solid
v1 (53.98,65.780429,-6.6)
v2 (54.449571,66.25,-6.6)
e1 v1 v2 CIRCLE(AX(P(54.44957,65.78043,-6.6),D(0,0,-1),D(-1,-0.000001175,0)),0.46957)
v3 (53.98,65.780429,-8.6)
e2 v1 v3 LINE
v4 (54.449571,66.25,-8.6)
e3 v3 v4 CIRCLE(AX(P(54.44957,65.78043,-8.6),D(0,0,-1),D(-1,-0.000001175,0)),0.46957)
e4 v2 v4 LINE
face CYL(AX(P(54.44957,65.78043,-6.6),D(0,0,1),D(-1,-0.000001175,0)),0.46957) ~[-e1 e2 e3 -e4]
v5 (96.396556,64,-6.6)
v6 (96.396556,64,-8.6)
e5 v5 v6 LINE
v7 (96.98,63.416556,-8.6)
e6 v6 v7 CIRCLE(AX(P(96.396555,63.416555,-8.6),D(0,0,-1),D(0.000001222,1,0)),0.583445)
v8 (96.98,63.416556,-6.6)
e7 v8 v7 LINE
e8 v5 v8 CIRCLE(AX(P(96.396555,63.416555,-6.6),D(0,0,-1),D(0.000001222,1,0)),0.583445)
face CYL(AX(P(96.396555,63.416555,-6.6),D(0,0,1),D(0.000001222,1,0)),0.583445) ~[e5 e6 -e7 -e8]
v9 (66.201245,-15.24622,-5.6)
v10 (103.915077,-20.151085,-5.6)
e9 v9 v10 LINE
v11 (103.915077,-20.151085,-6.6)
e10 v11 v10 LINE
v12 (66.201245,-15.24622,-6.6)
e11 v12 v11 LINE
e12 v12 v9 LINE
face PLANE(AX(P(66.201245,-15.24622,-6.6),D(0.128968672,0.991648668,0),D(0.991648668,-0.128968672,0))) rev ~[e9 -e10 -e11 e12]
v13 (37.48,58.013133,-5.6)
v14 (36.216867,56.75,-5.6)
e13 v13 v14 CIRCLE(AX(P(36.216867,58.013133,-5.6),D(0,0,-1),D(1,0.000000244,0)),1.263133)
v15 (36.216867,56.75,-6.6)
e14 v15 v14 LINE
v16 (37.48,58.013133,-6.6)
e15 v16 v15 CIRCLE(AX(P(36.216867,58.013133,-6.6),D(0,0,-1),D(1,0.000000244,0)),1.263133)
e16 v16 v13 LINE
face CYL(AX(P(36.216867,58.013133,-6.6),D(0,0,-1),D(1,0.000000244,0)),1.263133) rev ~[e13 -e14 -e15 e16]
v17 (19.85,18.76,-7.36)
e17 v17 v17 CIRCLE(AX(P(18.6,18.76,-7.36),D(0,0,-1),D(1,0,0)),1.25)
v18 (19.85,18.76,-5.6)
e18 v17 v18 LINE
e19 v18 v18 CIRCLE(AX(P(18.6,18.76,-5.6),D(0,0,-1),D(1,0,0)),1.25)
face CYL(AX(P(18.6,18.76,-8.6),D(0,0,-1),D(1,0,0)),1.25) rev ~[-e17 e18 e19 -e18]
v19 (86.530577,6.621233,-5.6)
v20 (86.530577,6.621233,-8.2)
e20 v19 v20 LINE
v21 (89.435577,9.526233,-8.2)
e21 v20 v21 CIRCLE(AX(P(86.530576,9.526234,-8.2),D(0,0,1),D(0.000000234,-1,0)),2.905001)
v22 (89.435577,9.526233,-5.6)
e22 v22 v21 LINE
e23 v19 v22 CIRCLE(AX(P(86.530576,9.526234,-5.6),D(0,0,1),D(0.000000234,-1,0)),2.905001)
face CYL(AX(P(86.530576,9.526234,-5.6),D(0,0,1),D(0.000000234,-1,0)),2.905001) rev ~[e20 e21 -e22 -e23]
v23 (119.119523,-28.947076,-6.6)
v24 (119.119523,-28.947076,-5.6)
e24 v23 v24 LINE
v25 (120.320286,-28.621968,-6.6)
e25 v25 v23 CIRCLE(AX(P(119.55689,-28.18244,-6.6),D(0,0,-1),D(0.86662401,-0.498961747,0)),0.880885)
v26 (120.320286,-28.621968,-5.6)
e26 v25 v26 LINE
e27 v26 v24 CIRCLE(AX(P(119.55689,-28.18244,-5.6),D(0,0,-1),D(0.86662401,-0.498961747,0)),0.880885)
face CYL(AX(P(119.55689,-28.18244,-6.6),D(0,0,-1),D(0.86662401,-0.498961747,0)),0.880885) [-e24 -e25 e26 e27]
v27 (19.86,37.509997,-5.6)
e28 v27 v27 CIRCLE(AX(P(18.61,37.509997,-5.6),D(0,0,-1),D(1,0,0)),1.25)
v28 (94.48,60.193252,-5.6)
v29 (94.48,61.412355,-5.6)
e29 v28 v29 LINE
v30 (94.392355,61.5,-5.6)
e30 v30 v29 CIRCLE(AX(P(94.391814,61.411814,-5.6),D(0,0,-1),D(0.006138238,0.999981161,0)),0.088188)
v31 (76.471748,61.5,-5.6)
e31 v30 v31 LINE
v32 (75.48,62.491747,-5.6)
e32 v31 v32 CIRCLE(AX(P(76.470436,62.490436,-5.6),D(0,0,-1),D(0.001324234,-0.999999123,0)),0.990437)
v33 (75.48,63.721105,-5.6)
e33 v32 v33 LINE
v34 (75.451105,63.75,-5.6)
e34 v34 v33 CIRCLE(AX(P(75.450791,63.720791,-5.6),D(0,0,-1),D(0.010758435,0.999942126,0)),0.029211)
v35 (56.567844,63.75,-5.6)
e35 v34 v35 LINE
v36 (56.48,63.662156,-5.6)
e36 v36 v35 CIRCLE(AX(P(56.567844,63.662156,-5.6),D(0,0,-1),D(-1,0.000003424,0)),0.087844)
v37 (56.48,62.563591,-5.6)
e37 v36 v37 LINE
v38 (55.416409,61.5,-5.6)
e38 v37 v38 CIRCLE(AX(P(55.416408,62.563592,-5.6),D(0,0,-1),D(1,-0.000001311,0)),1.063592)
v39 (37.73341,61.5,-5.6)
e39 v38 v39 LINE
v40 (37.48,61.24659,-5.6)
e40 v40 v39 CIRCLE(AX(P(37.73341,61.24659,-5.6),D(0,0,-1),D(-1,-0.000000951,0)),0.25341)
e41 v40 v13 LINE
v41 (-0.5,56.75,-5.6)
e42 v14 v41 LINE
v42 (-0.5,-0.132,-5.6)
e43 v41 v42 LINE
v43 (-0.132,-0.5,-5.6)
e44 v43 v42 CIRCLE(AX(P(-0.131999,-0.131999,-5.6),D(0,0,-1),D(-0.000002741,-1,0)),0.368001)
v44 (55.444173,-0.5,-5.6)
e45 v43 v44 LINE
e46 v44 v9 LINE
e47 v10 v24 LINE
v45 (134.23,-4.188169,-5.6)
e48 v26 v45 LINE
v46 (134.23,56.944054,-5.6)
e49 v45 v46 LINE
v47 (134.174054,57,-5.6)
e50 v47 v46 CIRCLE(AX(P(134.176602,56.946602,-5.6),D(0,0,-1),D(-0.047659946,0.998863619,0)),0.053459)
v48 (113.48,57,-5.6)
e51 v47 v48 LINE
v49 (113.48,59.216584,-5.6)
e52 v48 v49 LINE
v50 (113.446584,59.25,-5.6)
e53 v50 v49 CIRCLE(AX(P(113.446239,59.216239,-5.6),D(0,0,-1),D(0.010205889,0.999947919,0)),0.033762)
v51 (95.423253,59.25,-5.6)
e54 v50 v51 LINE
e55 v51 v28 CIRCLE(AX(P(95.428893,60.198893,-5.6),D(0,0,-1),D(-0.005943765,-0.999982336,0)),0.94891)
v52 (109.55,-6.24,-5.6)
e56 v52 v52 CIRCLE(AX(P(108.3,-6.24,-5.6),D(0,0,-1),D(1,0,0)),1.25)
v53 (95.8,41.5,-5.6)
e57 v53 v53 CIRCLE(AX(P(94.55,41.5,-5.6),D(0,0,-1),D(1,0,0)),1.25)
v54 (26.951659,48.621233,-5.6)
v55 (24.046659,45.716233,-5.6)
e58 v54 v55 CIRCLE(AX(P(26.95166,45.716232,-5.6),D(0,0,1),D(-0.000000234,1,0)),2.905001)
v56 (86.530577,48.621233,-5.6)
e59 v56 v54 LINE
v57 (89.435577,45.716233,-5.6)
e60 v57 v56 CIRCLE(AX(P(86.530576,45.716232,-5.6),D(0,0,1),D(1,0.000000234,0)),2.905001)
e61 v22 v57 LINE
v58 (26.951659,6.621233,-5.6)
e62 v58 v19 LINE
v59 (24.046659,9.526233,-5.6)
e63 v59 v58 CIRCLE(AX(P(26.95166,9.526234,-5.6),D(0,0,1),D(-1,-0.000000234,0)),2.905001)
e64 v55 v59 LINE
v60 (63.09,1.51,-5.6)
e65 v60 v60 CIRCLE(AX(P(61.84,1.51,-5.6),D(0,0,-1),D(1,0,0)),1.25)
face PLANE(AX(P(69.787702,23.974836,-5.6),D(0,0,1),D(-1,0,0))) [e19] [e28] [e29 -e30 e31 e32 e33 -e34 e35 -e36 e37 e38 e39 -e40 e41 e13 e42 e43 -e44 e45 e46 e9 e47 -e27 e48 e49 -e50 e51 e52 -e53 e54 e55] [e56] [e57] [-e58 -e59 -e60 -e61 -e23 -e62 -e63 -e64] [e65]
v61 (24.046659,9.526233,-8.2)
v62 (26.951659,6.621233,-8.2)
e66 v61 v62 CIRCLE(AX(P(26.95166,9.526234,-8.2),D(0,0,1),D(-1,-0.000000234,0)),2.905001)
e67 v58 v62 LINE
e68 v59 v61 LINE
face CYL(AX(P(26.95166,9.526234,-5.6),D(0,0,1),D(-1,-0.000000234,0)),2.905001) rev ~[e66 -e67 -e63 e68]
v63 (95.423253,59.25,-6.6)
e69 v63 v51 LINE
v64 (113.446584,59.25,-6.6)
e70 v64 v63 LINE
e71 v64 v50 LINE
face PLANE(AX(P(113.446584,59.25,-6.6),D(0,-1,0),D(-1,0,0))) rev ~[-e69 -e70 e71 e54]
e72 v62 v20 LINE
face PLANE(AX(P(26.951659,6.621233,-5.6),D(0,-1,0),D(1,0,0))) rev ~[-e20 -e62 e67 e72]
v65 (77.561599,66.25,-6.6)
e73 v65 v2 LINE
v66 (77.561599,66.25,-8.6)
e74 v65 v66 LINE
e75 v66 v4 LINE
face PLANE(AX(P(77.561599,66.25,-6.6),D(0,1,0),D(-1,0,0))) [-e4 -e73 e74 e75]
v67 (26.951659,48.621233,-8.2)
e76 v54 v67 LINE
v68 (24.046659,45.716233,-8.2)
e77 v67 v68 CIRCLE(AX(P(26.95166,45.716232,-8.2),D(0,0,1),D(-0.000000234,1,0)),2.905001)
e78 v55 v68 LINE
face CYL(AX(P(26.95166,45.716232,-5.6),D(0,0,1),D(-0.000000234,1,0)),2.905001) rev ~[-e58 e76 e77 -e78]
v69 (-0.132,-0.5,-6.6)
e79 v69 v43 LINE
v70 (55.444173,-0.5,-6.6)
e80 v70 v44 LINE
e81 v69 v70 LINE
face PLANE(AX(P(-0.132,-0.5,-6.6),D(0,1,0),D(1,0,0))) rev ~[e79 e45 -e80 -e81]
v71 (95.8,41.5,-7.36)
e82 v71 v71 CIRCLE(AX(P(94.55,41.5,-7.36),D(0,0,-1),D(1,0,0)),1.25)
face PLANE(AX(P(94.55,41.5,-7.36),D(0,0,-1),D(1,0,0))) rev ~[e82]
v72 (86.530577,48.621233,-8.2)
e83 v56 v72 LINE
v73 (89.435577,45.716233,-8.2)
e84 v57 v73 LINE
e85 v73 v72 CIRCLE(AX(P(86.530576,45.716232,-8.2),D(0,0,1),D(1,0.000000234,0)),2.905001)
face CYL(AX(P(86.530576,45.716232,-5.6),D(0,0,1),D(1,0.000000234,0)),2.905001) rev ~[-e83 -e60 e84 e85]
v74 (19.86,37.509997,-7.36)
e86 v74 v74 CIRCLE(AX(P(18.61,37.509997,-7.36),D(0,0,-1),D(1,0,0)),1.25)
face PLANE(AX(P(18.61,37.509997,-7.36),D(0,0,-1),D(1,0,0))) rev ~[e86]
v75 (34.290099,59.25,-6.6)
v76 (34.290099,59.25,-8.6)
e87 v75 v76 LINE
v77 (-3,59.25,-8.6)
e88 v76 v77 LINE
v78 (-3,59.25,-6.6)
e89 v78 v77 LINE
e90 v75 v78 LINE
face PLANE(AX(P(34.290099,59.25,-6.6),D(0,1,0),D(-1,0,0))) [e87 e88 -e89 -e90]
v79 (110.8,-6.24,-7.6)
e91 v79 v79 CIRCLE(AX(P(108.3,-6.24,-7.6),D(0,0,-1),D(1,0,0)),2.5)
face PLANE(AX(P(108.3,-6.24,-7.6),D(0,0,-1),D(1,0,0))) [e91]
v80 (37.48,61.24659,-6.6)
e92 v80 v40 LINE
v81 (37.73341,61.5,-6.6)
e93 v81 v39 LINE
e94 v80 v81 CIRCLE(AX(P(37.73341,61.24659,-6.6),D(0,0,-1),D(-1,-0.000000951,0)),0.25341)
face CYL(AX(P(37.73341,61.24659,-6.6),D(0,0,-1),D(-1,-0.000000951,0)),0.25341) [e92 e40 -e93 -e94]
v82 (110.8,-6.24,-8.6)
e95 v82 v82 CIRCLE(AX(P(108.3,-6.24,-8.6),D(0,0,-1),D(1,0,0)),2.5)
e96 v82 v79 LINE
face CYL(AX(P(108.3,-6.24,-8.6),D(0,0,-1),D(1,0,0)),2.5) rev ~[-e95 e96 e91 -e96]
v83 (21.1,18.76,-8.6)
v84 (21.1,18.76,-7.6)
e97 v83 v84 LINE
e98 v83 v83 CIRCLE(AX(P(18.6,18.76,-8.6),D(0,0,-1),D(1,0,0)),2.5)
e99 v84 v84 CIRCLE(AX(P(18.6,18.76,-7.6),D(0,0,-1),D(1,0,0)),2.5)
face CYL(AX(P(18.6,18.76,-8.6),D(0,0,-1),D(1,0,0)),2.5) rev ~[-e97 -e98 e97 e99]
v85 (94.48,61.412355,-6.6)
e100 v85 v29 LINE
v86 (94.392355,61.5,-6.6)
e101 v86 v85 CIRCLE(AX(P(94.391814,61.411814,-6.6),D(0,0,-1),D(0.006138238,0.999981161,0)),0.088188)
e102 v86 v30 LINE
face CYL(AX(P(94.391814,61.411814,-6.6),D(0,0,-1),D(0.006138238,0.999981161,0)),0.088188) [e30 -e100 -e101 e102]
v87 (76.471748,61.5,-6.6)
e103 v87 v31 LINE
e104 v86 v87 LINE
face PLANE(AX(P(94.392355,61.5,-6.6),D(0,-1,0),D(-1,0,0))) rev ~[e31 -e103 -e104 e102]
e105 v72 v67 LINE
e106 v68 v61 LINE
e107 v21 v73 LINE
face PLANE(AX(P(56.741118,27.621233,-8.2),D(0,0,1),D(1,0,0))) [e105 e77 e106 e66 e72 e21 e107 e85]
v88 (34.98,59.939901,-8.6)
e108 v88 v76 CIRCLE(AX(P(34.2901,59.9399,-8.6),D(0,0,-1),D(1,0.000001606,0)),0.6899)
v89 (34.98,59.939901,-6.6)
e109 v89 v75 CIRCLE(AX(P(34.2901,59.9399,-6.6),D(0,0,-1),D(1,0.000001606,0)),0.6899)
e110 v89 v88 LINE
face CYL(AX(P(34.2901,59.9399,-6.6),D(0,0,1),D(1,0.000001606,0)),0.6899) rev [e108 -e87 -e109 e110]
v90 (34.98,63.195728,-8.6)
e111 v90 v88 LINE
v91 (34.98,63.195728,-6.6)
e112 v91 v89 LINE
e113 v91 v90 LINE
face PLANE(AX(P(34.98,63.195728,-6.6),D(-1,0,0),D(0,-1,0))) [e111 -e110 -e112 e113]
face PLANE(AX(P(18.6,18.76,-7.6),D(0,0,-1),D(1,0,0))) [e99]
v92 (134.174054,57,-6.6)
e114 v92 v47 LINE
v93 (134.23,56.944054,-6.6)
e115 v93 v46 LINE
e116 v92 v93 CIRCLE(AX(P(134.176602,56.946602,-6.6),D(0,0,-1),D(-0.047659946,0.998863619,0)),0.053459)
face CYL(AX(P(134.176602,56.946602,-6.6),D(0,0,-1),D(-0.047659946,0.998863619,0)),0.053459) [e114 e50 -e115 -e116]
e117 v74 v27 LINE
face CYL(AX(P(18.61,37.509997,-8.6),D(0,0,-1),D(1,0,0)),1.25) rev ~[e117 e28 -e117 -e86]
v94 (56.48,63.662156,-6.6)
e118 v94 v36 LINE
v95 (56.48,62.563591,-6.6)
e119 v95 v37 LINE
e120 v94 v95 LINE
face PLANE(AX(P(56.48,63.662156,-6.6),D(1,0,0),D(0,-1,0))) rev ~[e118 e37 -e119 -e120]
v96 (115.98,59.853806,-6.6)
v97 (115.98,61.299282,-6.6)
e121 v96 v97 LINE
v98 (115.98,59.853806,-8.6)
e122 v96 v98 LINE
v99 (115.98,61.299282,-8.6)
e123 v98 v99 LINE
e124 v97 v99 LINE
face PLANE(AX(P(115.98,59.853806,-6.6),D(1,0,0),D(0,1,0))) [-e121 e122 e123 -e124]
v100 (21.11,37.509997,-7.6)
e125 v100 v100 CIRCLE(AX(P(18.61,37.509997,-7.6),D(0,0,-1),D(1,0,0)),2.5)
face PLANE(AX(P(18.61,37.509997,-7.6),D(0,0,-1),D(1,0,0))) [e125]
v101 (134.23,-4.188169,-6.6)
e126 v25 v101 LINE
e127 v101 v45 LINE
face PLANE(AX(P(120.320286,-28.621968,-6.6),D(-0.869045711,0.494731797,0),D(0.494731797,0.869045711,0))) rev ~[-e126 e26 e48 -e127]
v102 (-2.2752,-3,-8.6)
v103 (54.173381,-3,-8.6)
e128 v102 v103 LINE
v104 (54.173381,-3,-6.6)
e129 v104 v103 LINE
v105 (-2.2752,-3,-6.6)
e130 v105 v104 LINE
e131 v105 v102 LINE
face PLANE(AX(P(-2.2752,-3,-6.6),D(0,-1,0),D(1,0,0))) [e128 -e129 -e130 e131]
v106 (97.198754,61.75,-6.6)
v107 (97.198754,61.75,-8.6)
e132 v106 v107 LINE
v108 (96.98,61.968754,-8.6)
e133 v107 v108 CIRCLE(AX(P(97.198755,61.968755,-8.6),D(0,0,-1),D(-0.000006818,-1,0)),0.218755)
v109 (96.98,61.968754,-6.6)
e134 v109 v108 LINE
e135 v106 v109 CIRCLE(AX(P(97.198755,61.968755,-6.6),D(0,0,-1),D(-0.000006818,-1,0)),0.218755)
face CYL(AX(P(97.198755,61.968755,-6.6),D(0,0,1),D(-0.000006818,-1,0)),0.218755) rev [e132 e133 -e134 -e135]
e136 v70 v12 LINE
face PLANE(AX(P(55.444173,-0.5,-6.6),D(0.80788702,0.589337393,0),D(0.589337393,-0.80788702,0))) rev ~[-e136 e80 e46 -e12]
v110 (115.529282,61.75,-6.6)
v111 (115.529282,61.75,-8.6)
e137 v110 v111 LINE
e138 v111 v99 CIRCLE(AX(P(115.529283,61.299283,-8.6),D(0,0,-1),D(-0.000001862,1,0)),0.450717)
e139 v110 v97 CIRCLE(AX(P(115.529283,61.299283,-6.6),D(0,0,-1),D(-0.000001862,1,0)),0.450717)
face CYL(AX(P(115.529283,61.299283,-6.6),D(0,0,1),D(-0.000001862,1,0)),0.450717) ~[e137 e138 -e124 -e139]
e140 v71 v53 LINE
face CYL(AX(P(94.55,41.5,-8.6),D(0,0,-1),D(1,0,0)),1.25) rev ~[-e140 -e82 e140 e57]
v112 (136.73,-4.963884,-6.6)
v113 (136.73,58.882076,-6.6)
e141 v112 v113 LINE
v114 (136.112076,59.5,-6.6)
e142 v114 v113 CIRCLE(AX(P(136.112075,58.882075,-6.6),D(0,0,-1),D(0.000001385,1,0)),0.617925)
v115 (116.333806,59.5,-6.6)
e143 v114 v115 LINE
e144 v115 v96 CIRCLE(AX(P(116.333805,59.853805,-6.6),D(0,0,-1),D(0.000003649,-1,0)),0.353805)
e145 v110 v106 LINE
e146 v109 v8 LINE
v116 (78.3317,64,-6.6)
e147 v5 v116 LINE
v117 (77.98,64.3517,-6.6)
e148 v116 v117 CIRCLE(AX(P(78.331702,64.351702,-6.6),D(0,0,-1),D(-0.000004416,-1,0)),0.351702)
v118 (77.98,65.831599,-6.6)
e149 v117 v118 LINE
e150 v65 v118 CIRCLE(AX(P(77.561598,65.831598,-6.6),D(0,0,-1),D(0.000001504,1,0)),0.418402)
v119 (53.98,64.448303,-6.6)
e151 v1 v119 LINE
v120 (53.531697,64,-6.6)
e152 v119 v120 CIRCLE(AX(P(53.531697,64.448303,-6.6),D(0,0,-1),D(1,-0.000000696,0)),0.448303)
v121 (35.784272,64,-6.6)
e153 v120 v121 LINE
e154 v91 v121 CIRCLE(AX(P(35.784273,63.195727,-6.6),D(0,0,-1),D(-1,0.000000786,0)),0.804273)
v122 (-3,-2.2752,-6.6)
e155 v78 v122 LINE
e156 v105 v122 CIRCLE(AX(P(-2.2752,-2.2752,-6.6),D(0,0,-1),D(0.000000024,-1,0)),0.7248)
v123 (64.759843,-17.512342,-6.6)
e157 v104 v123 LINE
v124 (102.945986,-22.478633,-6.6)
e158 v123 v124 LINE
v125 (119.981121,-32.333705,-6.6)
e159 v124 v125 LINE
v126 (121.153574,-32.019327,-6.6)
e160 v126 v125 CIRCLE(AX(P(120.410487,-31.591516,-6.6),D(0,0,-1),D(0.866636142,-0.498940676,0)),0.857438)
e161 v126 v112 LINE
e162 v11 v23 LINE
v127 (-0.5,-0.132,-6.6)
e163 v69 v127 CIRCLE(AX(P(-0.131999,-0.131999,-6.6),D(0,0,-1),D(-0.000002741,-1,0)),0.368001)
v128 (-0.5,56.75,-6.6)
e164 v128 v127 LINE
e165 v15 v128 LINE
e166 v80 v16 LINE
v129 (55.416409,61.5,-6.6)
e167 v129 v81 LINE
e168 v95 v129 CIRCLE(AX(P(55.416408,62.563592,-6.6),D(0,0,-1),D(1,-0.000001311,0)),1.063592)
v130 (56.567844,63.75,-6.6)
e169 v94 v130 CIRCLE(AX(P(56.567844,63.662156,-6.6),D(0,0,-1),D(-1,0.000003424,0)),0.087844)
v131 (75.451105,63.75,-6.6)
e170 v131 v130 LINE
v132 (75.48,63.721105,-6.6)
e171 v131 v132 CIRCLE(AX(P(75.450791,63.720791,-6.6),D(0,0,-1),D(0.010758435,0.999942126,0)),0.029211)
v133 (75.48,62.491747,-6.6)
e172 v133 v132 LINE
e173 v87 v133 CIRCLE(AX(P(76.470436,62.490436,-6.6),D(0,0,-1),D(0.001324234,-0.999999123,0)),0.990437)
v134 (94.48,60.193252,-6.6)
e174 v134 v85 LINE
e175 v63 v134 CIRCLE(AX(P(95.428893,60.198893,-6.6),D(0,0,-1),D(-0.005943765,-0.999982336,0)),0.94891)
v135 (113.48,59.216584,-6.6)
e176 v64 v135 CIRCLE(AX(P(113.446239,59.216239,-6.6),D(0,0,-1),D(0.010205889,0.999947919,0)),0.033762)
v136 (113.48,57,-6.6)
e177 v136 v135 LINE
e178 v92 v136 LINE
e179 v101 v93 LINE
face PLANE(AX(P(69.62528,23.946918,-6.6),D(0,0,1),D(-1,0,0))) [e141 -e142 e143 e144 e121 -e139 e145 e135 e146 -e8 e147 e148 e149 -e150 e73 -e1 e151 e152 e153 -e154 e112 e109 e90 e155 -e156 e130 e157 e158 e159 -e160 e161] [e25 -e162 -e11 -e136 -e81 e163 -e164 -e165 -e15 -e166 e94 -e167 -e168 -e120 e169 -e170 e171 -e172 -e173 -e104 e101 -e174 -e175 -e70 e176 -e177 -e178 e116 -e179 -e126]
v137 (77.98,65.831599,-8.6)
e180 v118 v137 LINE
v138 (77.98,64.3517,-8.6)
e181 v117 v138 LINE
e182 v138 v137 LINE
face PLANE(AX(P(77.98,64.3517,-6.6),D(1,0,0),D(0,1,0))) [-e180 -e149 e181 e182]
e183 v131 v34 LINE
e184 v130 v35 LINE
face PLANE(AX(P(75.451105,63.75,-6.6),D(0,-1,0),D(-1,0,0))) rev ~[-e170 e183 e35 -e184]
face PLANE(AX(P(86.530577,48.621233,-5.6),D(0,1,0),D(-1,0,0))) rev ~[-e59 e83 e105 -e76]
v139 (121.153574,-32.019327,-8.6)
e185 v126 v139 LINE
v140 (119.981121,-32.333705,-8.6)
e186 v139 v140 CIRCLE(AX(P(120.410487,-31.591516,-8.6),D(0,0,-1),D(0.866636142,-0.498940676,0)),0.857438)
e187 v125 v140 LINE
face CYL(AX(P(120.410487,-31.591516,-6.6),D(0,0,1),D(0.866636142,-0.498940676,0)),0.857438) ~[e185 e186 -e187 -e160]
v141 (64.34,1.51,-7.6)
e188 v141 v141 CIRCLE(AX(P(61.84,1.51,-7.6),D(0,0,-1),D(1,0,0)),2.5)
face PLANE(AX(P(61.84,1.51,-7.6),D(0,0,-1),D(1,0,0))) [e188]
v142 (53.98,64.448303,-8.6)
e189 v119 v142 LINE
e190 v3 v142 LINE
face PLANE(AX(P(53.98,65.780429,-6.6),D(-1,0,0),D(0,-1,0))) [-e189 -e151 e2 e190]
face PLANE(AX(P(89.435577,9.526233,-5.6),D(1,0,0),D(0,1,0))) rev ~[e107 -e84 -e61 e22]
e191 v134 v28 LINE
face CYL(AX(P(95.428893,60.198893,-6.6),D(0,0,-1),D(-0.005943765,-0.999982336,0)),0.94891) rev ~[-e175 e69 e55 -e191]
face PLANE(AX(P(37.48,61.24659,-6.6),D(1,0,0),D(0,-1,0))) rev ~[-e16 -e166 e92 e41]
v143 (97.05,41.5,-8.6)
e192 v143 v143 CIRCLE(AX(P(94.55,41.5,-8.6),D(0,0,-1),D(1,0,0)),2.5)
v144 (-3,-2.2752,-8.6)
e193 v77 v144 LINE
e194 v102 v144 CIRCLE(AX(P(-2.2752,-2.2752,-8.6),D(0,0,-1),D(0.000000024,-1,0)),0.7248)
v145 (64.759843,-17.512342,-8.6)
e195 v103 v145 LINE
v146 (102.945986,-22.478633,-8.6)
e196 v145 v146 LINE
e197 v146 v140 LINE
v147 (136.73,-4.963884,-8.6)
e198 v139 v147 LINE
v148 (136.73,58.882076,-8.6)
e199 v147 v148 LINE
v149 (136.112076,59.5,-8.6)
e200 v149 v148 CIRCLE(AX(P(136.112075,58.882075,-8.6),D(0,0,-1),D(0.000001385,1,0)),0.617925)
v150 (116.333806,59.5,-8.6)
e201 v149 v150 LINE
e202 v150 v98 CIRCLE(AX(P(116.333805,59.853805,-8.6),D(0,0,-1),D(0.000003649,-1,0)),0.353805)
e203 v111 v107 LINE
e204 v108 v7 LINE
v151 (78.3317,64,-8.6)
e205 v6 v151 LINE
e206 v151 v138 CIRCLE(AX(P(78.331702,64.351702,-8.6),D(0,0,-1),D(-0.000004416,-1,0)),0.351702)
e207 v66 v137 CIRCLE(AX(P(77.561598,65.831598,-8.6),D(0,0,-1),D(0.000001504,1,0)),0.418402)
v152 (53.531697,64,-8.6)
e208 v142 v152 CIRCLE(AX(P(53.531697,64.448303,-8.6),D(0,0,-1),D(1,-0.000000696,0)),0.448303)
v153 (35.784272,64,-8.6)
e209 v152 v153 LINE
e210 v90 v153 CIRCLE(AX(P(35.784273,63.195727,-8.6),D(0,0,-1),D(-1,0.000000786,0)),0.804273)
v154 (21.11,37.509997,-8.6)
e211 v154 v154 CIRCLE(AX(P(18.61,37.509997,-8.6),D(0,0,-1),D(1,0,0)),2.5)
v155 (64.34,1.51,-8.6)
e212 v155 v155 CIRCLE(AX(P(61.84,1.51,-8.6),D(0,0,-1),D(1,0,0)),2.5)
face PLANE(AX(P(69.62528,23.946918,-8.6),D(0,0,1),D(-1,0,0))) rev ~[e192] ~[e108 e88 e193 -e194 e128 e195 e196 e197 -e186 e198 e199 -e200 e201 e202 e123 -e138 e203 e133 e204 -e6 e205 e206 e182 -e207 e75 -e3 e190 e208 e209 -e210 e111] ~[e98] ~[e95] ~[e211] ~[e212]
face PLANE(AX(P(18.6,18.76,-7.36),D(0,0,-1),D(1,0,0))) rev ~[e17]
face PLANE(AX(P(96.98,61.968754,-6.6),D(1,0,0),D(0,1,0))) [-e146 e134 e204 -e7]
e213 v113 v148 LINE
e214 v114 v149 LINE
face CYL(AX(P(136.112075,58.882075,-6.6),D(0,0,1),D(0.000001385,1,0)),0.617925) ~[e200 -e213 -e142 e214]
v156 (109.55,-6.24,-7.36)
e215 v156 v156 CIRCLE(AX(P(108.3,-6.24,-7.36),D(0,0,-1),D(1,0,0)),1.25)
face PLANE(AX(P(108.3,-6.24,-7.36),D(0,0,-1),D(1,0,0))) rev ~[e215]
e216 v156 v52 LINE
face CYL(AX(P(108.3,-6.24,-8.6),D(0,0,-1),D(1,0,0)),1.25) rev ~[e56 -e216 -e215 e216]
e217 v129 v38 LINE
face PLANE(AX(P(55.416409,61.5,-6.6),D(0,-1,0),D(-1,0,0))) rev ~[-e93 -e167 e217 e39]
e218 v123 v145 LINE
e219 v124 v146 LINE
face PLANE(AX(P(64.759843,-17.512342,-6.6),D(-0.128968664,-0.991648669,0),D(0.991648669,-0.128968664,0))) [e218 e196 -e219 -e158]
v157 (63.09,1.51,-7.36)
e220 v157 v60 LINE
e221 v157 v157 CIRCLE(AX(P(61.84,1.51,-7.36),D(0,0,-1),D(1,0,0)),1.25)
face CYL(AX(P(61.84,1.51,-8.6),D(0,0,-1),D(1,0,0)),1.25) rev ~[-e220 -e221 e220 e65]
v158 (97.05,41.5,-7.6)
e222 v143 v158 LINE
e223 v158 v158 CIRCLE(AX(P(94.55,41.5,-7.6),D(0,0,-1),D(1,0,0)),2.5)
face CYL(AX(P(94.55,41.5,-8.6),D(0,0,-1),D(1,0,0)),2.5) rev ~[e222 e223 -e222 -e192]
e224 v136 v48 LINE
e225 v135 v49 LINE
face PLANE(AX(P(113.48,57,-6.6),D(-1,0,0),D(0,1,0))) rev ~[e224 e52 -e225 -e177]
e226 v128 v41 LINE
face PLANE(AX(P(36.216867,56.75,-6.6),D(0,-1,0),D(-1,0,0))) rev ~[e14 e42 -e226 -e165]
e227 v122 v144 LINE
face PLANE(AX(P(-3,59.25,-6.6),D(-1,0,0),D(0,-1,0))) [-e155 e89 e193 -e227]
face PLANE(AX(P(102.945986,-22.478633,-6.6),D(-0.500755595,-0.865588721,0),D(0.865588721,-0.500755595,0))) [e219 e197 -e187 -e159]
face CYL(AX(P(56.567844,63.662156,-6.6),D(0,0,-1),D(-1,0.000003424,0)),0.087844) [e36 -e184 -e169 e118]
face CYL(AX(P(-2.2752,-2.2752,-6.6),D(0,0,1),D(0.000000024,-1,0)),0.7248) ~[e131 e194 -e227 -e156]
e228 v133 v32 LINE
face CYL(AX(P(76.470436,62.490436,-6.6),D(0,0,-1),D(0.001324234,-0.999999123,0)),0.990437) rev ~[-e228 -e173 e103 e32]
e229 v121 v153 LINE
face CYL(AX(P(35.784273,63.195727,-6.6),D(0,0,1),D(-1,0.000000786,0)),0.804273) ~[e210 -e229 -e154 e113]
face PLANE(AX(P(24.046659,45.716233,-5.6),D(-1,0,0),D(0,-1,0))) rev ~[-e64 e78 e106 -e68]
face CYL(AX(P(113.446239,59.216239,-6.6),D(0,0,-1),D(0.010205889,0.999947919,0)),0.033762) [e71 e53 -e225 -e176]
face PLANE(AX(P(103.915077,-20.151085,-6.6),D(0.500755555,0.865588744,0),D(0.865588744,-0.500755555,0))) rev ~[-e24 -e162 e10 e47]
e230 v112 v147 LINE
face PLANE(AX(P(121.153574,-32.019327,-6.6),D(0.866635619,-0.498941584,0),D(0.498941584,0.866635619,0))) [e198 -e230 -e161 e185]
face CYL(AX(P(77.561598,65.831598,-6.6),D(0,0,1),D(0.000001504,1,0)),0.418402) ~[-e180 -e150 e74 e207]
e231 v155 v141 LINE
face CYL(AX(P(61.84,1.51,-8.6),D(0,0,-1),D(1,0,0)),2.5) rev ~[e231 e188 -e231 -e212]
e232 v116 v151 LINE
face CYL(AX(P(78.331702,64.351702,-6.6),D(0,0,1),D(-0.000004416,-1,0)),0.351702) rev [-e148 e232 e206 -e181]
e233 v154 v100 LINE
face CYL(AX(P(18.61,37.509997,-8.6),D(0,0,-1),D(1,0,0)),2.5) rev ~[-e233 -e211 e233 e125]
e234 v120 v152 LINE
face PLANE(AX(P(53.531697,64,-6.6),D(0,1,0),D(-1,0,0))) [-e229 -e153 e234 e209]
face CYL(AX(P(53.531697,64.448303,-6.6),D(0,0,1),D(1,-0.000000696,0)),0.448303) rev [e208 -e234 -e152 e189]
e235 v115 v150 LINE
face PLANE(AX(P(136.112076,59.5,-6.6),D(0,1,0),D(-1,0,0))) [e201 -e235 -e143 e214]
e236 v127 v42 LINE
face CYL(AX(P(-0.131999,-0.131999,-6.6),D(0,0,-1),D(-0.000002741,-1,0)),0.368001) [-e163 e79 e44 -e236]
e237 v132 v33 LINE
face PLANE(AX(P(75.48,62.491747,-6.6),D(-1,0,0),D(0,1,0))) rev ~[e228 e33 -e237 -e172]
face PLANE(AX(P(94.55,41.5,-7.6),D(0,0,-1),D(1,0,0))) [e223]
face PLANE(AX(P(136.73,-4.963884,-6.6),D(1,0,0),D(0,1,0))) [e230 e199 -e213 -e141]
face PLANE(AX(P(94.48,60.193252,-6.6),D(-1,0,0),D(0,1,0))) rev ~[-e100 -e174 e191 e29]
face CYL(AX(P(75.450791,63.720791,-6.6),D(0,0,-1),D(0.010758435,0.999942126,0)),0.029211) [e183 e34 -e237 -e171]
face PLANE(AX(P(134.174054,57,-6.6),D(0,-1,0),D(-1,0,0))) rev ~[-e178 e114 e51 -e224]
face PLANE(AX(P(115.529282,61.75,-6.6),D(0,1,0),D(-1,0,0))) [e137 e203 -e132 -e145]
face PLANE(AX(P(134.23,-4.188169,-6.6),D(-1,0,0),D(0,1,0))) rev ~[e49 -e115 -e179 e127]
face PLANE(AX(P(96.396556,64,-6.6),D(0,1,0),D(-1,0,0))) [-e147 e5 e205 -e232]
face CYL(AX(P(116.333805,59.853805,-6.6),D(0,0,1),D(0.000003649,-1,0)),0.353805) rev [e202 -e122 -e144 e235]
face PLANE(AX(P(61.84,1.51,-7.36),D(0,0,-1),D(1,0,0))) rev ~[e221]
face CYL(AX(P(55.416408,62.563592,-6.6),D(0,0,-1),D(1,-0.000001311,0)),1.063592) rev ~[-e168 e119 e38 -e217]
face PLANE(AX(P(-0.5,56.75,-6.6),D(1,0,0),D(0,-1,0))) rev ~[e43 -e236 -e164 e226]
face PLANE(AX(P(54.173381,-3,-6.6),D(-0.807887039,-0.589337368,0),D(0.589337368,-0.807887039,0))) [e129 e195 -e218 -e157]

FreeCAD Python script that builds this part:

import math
import FreeCAD as App
import Part
import Sketcher
Q = App.Units.Quantity

doc = App.newDocument("Part")
body = doc.addObject("PartDesign::Body", "Body")

sketch1 = body.newObject("Sketcher::SketchObject", "Sketch")
sketch1.AttachmentSupport = (doc.getObject("XY_Plane"), [""])
sketch1.MapMode = "FlatFace"
sketch1.AttachmentOffset = App.Placement(App.Vector(0, 0, -16), App.Rotation())
sketch1.addGeometry([
    Part.LineSegment(App.Vector(54.17, -3, 0), App.Vector(-2.28, -3, 0)),
    Part.ArcOfCircle(Part.Circle(App.Vector(-2.28, -2.28, 0), App.Vector(0, 0, 1), 0.72), math.radians(180), math.radians(270)),
    Part.LineSegment(App.Vector(-3, -2.28, 0), App.Vector(-3, 59.25, 0)),
    Part.LineSegment(App.Vector(-3, 59.25, 0), App.Vector(34.29, 59.25, 0)),
    Part.ArcOfCircle(Part.Circle(App.Vector(34.29, 59.94, 0), App.Vector(0, 0, 1), 0.69), math.radians(-90), math.radians(0)),
    Part.LineSegment(App.Vector(34.98, 59.94, 0), App.Vector(34.98, 63.2, 0)),
    Part.ArcOfCircle(Part.Circle(App.Vector(35.78, 63.2, 0), App.Vector(0, 0, 1), 0.8), math.radians(90), math.radians(180)),
    Part.LineSegment(App.Vector(35.78, 64, 0), App.Vector(53.53, 64, 0)),
    Part.ArcOfCircle(Part.Circle(App.Vector(53.53, 64.45, 0), App.Vector(0, 0, 1), 0.45), math.radians(-90), math.radians(0)),
    Part.LineSegment(App.Vector(53.98, 64.45, 0), App.Vector(53.98, 65.78, 0)),
    Part.ArcOfCircle(Part.Circle(App.Vector(54.45, 65.78, 0), App.Vector(0, 0, 1), 0.47), math.radians(90), math.radians(180)),
    Part.LineSegment(App.Vector(54.45, 66.25, 0), App.Vector(77.56, 66.25, 0)),
    Part.ArcOfCircle(Part.Circle(App.Vector(77.56, 65.83, 0), App.Vector(0, 0, 1), 0.42), math.radians(0), math.radians(90)),
    Part.LineSegment(App.Vector(77.98, 65.83, 0), App.Vector(77.98, 64.35, 0)),
    Part.ArcOfCircle(Part.Circle(App.Vector(78.33, 64.35, 0), App.Vector(0, 0, 1), 0.35), math.radians(-180), math.radians(-90)),
    Part.LineSegment(App.Vector(78.33, 64, 0), App.Vector(96.4, 64, 0)),
    Part.ArcOfCircle(Part.Circle(App.Vector(96.4, 63.42, 0), App.Vector(0, 0, 1), 0.58), math.radians(0), math.radians(90)),
    Part.LineSegment(App.Vector(96.98, 63.42, 0), App.Vector(96.98, 61.97, 0)),
    Part.ArcOfCircle(Part.Circle(App.Vector(97.2, 61.97, 0), App.Vector(0, 0, 1), 0.22), math.radians(-180), math.radians(-90)),
    Part.LineSegment(App.Vector(97.2, 61.75, 0), App.Vector(115.53, 61.75, 0)),
    Part.ArcOfCircle(Part.Circle(App.Vector(115.53, 61.3, 0), App.Vector(0, 0, 1), 0.45), math.radians(0), math.radians(90)),
    Part.LineSegment(App.Vector(115.98, 61.3, 0), App.Vector(115.98, 59.85, 0)),
    Part.ArcOfCircle(Part.Circle(App.Vector(116.33, 59.85, 0), App.Vector(0, 0, 1), 0.35), math.radians(180), math.radians(270)),
    Part.LineSegment(App.Vector(116.33, 59.5, 0), App.Vector(136.11, 59.5, 0)),
    Part.ArcOfCircle(Part.Circle(App.Vector(136.11, 58.88, 0), App.Vector(0, 0, 1), 0.62), math.radians(0), math.radians(90)),
    Part.LineSegment(App.Vector(136.73, 58.88, 0), App.Vector(136.73, -4.96, 0)),
    Part.LineSegment(App.Vector(136.73, -4.96, 0), App.Vector(121.15, -32.02, 0)),
    Part.ArcOfCircle(Part.Circle(App.Vector(120.41, -31.59, 0), App.Vector(0, 0, 1), 0.86), math.radians(-120), math.radians(-30)),
    Part.LineSegment(App.Vector(119.98, -32.33, 0), App.Vector(102.95, -22.48, 0)),
    Part.LineSegment(App.Vector(102.95, -22.48, 0), App.Vector(64.76, -17.51, 0)),
    Part.LineSegment(App.Vector(64.76, -17.51, 0), App.Vector(54.17, -3, 0)),
], False)
sketch1.addConstraint([
    Sketcher.Constraint("Tangent", 0, 2, 1, 2),
    Sketcher.Constraint("Tangent", 1, 1, 2, 1),
    Sketcher.Constraint("Coincident", 2, 2, 3, 1),
    Sketcher.Constraint("Tangent", 3, 2, 4, 1),
    Sketcher.Constraint("Tangent", 4, 2, 5, 1),
    Sketcher.Constraint("Tangent", 5, 2, 6, 2),
    Sketcher.Constraint("Tangent", 6, 1, 7, 1),
    Sketcher.Constraint("Tangent", 7, 2, 8, 1),
    Sketcher.Constraint("Tangent", 8, 2, 9, 1),
    Sketcher.Constraint("Tangent", 9, 2, 10, 2),
    Sketcher.Constraint("Tangent", 10, 1, 11, 1),
    Sketcher.Constraint("Tangent", 11, 2, 12, 2),
    Sketcher.Constraint("Tangent", 12, 1, 13, 1),
    Sketcher.Constraint("Coincident", 13, 2, 14, 1),
    Sketcher.Constraint("Coincident", 14, 2, 15, 1),
    Sketcher.Constraint("Tangent", 15, 2, 16, 2),
    Sketcher.Constraint("Tangent", 16, 1, 17, 1),
    Sketcher.Constraint("Coincident", 17, 2, 18, 1),
    Sketcher.Constraint("Coincident", 18, 2, 19, 1),
    Sketcher.Constraint("Tangent", 19, 2, 20, 2),
    Sketcher.Constraint("Tangent", 20, 1, 21, 1),
    Sketcher.Constraint("Coincident", 21, 2, 22, 1),
    Sketcher.Constraint("Coincident", 22, 2, 23, 1),
    Sketcher.Constraint("Tangent", 23, 2, 24, 2),
    Sketcher.Constraint("Tangent", 24, 1, 25, 1),
    Sketcher.Constraint("Coincident", 25, 2, 26, 1),
    Sketcher.Constraint("Tangent", 26, 2, 27, 2),
    Sketcher.Constraint("Tangent", 27, 1, 28, 1),
    Sketcher.Constraint("Coincident", 28, 2, 29, 1),
    Sketcher.Constraint("Coincident", 29, 2, 30, 1),
    Sketcher.Constraint("Coincident", 30, 2, 0, 1),
    Sketcher.Constraint("Horizontal", 0),
    Sketcher.Constraint("Vertical", 2),
    Sketcher.Constraint("Horizontal", 3),
    Sketcher.Constraint("Vertical", 5),
    Sketcher.Constraint("Horizontal", 7),
    Sketcher.Constraint("Vertical", 9),
    Sketcher.Constraint("Horizontal", 11),
    Sketcher.Constraint("Vertical", 13),
    Sketcher.Constraint("Horizontal", 15),
    Sketcher.Constraint("Vertical", 17),
    Sketcher.Constraint("Horizontal", 19),
    Sketcher.Constraint("Vertical", 21),
    Sketcher.Constraint("Horizontal", 23),
    Sketcher.Constraint("Vertical", 25),
    Sketcher.Constraint("Horizontal", 14, 3, 13, 2),
    Sketcher.Constraint("Horizontal", 7, 2, 14, 2),
    Sketcher.Constraint("Horizontal", 18, 3, 17, 2),
    Sketcher.Constraint("Horizontal", 22, 3, 21, 2),
    Sketcher.Constraint("DistanceY", 0, 2, -1, 1, 3.0),
    Sketcher.Constraint("DistanceX", 1, 1, -1, 1, 3.0),
    Sketcher.Constraint("DistanceY", -1, 1, 6, 1, 64.0),
    Sketcher.Constraint("DistanceY", -1, 1, 22, 2, 59.5),
    Sketcher.Constraint("Angle", 26, Q("-119.93 deg")),
    Sketcher.Constraint("Angle", 28, Q("149.949998 deg")),
    Sketcher.Constraint("Angle", 29, Q("172.590001 deg")),
    Sketcher.Constraint("Angle", 30, Q("126.11 deg")),
    Sketcher.Constraint("Radius", 1, 0.7248),
    Sketcher.Constraint("Radius", 4, 0.6899),
    Sketcher.Constraint("Radius", 12, 0.418402),
    Sketcher.Constraint("Radius", 14, 0.351702),
    Sketcher.Constraint("DistanceY", -1, 1, 2, 2, 59.25),
    Sketcher.Constraint("DistanceX", -1, 1, 4, 2, 34.98),
    Sketcher.Constraint("DistanceX", -1, 1, 8, 2, 53.98),
    Sketcher.Constraint("DistanceY", -1, 1, 10, 1, 66.25),
    Sketcher.Constraint("DistanceX", -1, 1, 12, 1, 77.98),
    Sketcher.Constraint("DistanceX", -1, 1, 16, 1, 96.98),
    Sketcher.Constraint("DistanceY", -1, 1, 18, 2, 61.75),
    Sketcher.Constraint("DistanceX", -1, 1, 20, 1, 115.98),
    Sketcher.Constraint("DistanceX", -1, 1, 24, 1, 136.73),
    Sketcher.Constraint("Radius", 10, 0.46957),
    Sketcher.Constraint("Radius", 6, 0.804273),
    Sketcher.Constraint("Radius", 8, 0.448303),
    Sketcher.Constraint("Radius", 16, 0.583445),
    Sketcher.Constraint("Radius", 18, 0.218755),
    Sketcher.Constraint("Radius", 20, 0.450717),
    Sketcher.Constraint("Radius", 22, 0.353805),
    Sketcher.Constraint("Radius", 24, 0.617925),
    Sketcher.Constraint("Radius", 27, 0.857438),
    Sketcher.Constraint("DistanceX", 0, 2, 0, 1, 56.448581),
    Sketcher.Constraint("DistanceX", 19, 1, 19, 2, 18.330528),
    Sketcher.Constraint("DistanceX", 23, 1, 23, 2, 19.77827),
    Sketcher.Constraint("DistanceY", 25, 2, 25, 1, 63.84596),
    Sketcher.Constraint("DistanceX", -1, 1, 14, 2, 78.3317),
    Sketcher.Constraint("DistanceY", 27, 3, 20, 3, 92.890799),
    Sketcher.Constraint("DistanceX", 28, 2, 27, 3, 17.464501),
])
pad1 = body.newObject("PartDesign::Pad", "Pad")
pad1.Profile = sketch1
pad1.Length = 2
pad1.Reversed = True

sketch2 = body.newObject("Sketcher::SketchObject", "Sketch001")
sketch2.AttachmentSupport = (doc.getObject("XY_Plane"), [""])
sketch2.MapMode = "FlatFace"
sketch2.AttachmentOffset = App.Placement(App.Vector(0, 0, -16), App.Rotation())
sketch2.addGeometry([
    Part.LineSegment(App.Vector(55.444, -0.5, 0), App.Vector(-0.132, -0.5, 0)),
    Part.ArcOfCircle(Part.Circle(App.Vector(-0.132, -0.132, 0), App.Vector(0, 0, 1), 0.368), math.radians(-180), math.radians(-90)),
    Part.LineSegment(App.Vector(-0.5, -0.132, 0), App.Vector(-0.5, 56.75, 0)),
    Part.LineSegment(App.Vector(-0.5, 56.75, 0), App.Vector(36.217, 56.75, 0)),
    Part.ArcOfCircle(Part.Circle(App.Vector(36.217, 58.013, 0), App.Vector(0, 0, 1), 1.263), math.radians(-90), math.radians(0)),
    Part.LineSegment(App.Vector(37.48, 58.013, 0), App.Vector(37.48, 61.247, 0)),
    Part.ArcOfCircle(Part.Circle(App.Vector(37.733, 61.247, 0), App.Vector(0, 0, 1), 0.253), math.radians(90), math.radians(180)),
    Part.LineSegment(App.Vector(37.733, 61.5, 0), App.Vector(55.416, 61.5, 0)),
    Part.ArcOfCircle(Part.Circle(App.Vector(55.416, 62.564, 0), App.Vector(0, 0, 1), 1.064), math.radians(-90), math.radians(0)),
    Part.LineSegment(App.Vector(56.48, 62.564, 0), App.Vector(56.48, 63.662, 0)),
    Part.ArcOfCircle(Part.Circle(App.Vector(56.568, 63.662, 0), App.Vector(0, 0, 1), 0.088), math.radians(90), math.radians(180)),
    Part.LineSegment(App.Vector(56.568, 63.75, 0), App.Vector(75.451, 63.75, 0)),
    Part.ArcOfCircle(Part.Circle(App.Vector(75.451, 63.721, 0), App.Vector(0, 0, 1), 0.029), math.radians(1), math.radians(89)),
    Part.LineSegment(App.Vector(75.48, 63.721, 0), App.Vector(75.48, 62.492, 0)),
    Part.ArcOfCircle(Part.Circle(App.Vector(76.47, 62.49, 0), App.Vector(0, 0, 1), 0.99), math.radians(180), math.radians(270)),
    Part.LineSegment(App.Vector(76.472, 61.5, 0), App.Vector(94.392, 61.5, 0)),
    Part.ArcOfCircle(Part.Circle(App.Vector(94.392, 61.412, 0), App.Vector(0, 0, 1), 0.088), math.radians(0), math.radians(90)),
    Part.LineSegment(App.Vector(94.48, 61.412, 0), App.Vector(94.48, 60.193, 0)),
    Part.ArcOfCircle(Part.Circle(App.Vector(95.429, 60.199, 0), App.Vector(0, 0, 1), 0.949), math.radians(-180), math.radians(-90)),
    Part.LineSegment(App.Vector(95.423, 59.25, 0), App.Vector(113.447, 59.25, 0)),
    Part.ArcOfCircle(Part.Circle(App.Vector(113.446, 59.216, 0), App.Vector(0, 0, 1), 0.034), math.radians(1), math.radians(89)),
    Part.LineSegment(App.Vector(113.48, 59.217, 0), App.Vector(113.48, 57, 0)),
    Part.LineSegment(App.Vector(113.48, 57, 0), App.Vector(134.174, 57, 0)),
    Part.ArcOfCircle(Part.Circle(App.Vector(134.177, 56.947, 0), App.Vector(0, 0, 1), 0.053), math.radians(-3), math.radians(93)),
    Part.LineSegment(App.Vector(134.23, 56.944, 0), App.Vector(134.23, -4.188, 0)),
    Part.LineSegment(App.Vector(134.23, -4.188, 0), App.Vector(120.32, -28.622, 0)),
    Part.ArcOfCircle(Part.Circle(App.Vector(119.557, -28.182, 0), App.Vector(0, 0, 1), 0.881), math.radians(-120), math.radians(-30)),
    Part.LineSegment(App.Vector(119.12, -28.947, 0), App.Vector(103.915, -20.151, 0)),
    Part.LineSegment(App.Vector(103.915, -20.151, 0), App.Vector(66.201, -15.246, 0)),
    Part.LineSegment(App.Vector(66.201, -15.246, 0), App.Vector(55.444, -0.5, 0)),
], False)
sketch2.addConstraint([
    Sketcher.Constraint("Coincident", 0, 2, 1, 2),
    Sketcher.Constraint("Coincident", 1, 1, 2, 1),
    Sketcher.Constraint("Coincident", 2, 2, 3, 1),
    Sketcher.Constraint("Tangent", 3, 2, 4, 1),
    Sketcher.Constraint("Tangent", 4, 2, 5, 1),
    Sketcher.Constraint("Tangent", 5, 2, 6, 2),
    Sketcher.Constraint("Tangent", 6, 1, 7, 1),
    Sketcher.Constraint("Tangent", 7, 2, 8, 1),
    Sketcher.Constraint("Tangent", 8, 2, 9, 1),
    Sketcher.Constraint("Coincident", 9, 2, 10, 2),
    Sketcher.Constraint("Coincident", 10, 1, 11, 1),
    Sketcher.Constraint("Coincident", 11, 2, 12, 2),
    Sketcher.Constraint("Coincident", 12, 1, 13, 1),
    Sketcher.Constraint("Coincident", 13, 2, 14, 1),
    Sketcher.Constraint("Coincident", 14, 2, 15, 1),
    Sketcher.Constraint("Coincident", 15, 2, 16, 2),
    Sketcher.Constraint("Coincident", 16, 1, 17, 1),
    Sketcher.Constraint("Coincident", 17, 2, 18, 1),
    Sketcher.Constraint("Coincident", 18, 2, 19, 1),
    Sketcher.Constraint("Coincident", 19, 2, 20, 2),
    Sketcher.Constraint("Coincident", 20, 1, 21, 1),
    Sketcher.Constraint("Coincident", 21, 2, 22, 1),
    Sketcher.Constraint("Coincident", 22, 2, 23, 2),
    Sketcher.Constraint("Coincident", 23, 1, 24, 1),
    Sketcher.Constraint("Coincident", 24, 2, 25, 1),
    Sketcher.Constraint("Coincident", 25, 2, 26, 2),
    Sketcher.Constraint("Coincident", 26, 1, 27, 1),
    Sketcher.Constraint("Coincident", 27, 2, 28, 1),
    Sketcher.Constraint("Coincident", 28, 2, 29, 1),
    Sketcher.Constraint("Coincident", 29, 2, 0, 1),
    Sketcher.Constraint("Horizontal", 0),
    Sketcher.Constraint("Vertical", 2),
    Sketcher.Constraint("Horizontal", 3),
    Sketcher.Constraint("Vertical", 5),
    Sketcher.Constraint("Horizontal", 7),
    Sketcher.Constraint("Vertical", 9),
    Sketcher.Constraint("Horizontal", 11),
    Sketcher.Constraint("Vertical", 13),
    Sketcher.Constraint("Horizontal", 15),
    Sketcher.Constraint("Vertical", 17),
    Sketcher.Constraint("Horizontal", 19),
    Sketcher.Constraint("Vertical", 21),
    Sketcher.Constraint("Horizontal", 22),
    Sketcher.Constraint("Vertical", 24),
    Sketcher.Constraint("Horizontal", 10, 3, 9, 2),
    Sketcher.Constraint("Horizontal", 7, 2, 14, 2),
    Sketcher.Constraint("Vertical", 1, 3, 0, 2),
    Sketcher.Constraint("DistanceY", -1, 1, 21, 2, 57.0),
    Sketcher.Constraint("Radius", 1, 0.368001),
    Sketcher.Constraint("DistanceX", 17, 2, 20, 1, 19.0),
    Sketcher.Constraint("DistanceY", 0, 2, -1, 1, 0.5),
    Sketcher.Constraint("DistanceX", 1, 1, -1, 1, 0.5),
    Sketcher.Constraint("DistanceY", -1, 1, 6, 1, 61.5),
    Sketcher.Constraint("Angle", 27, Q("149.95 deg")),
    Sketcher.Constraint("Angle", 28, Q("172.59 deg")),
    Sketcher.Constraint("Angle", 29, Q("126.110002 deg")),
    Sketcher.Constraint("DistanceX", 7, 1, 7, 2, 17.682999),
    Sketcher.Constraint("DistanceY", 2, 1, 2, 2, 56.882),
    Sketcher.Constraint("DistanceY", -1, 1, 2, 2, 56.75),
    Sketcher.Constraint("DistanceX", -1, 1, 4, 2, 37.48),
    Sketcher.Constraint("DistanceX", -1, 1, 8, 2, 56.48),
    Sketcher.Constraint("DistanceY", -1, 1, 10, 1, 63.75),
    Sketcher.Constraint("DistanceX", -1, 1, 12, 1, 75.48),
    Sketcher.Constraint("DistanceX", -1, 1, 16, 1, 94.48),
    Sketcher.Constraint("DistanceY", -1, 1, 18, 2, 59.25),
    Sketcher.Constraint("DistanceX", -1, 1, 23, 1, 134.23),
    Sketcher.Constraint("Radius", 6, 0.25341),
    Sketcher.Constraint("Radius", 12, 0.029211),
    Sketcher.Constraint("Radius", 18, 0.94891),
    Sketcher.Constraint("Radius", 23, 0.053459),
    Sketcher.Constraint("Radius", 4, 1.263133),
    Sketcher.Constraint("Radius", 10, 0.087844),
    Sketcher.Constraint("Radius", 14, 0.990437),
    Sketcher.Constraint("Radius", 16, 0.088188),
    Sketcher.Constraint("Radius", 20, 0.033762),
    Sketcher.Constraint("Radius", 26, 0.880885),
    Sketcher.Constraint("DistanceX", 11, 1, 11, 2, 18.883261),
    Sketcher.Constraint("DistanceX", 19, 1, 19, 2, 18.023331),
    Sketcher.Constraint("DistanceY", 13, 2, 13, 1, 1.229358),
    Sketcher.Constraint("DistanceX", -1, 1, 23, 3, 134.176602),
    Sketcher.Constraint("DistanceY", -1, 1, 23, 3, 56.946602),
    Sketcher.Constraint("DistanceX", 15, 2, 18, 2, 1.030898),
    Sketcher.Constraint("DistanceY", 25, 2, 24, 2, 24.433799),
    Sketcher.Constraint("Distance", 27, 17.565439),
    Sketcher.Constraint("DistanceX", 0, 2, 0, 1, 55.576173),
    Sketcher.Constraint("DistanceX", 15, 1, 15, 2, 17.920607),
    Sketcher.Constraint("DistanceY", 17, 2, 17, 1, 1.219103),
    Sketcher.Constraint("DistanceY", 21, 2, 21, 1, 2.216584),
    Sketcher.Constraint("DistanceY", 24, 2, 24, 1, 61.132223),
    Sketcher.Constraint("DistanceX", -1, 1, 26, 3, 119.55689),
    Sketcher.Constraint("DistanceY", 26, 3, -1, 1, 28.18244),
    Sketcher.Constraint("DistanceY", 28, 2, -1, 1, 15.24622),
    Sketcher.Constraint("DistanceX", 11, 2, 14, 3, 1.019331),
    Sketcher.Constraint("DistanceY", 14, 3, 12, 1, 1.230669),
    Sketcher.Constraint("DistanceX", 14, 3, 14, 2, 0.001312),
    Sketcher.Constraint("DistanceY", 16, 3, 16, 1, 0.000541),
])
pad2 = body.newObject("PartDesign::Pad", "Pad001")
pad2.Profile = sketch2
pad2.Length = 1

sketch3 = body.newObject("Sketcher::SketchObject", "Sketch002")
sketch3.AttachmentSupport = (doc.getObject("XY_Plane"), [""])
sketch3.MapMode = "FlatFace"
sketch3.AttachmentOffset = App.Placement(App.Vector(0, 0, -18), App.Rotation())
sketch3.addGeometry([
    Part.Circle(App.Vector(18.6, 37.5, 0), App.Vector(0, 0, 1), 1.2),
    Part.Circle(App.Vector(18.6, 18.8, 0), App.Vector(0, 0, 1), 1.2),
    Part.Circle(App.Vector(61.8, 1.5, 0), App.Vector(0, 0, 1), 1.2),
    Part.Circle(App.Vector(108.3, -6.2, 0), App.Vector(0, 0, 1), 1.2),
    Part.Circle(App.Vector(94.5, 41.5, 0), App.Vector(0, 0, 1), 1.2),
], False)
sketch3.addConstraint([
    Sketcher.Constraint("Equal", 0, 1),
    Sketcher.Constraint("Equal", 1, 2),
    Sketcher.Constraint("Equal", 2, 3),
    Sketcher.Constraint("Equal", 3, 4),
    Sketcher.Constraint("Diameter", 0, 2.5),
    Sketcher.Constraint("DistanceY", 3, 3, 1, 3, 25.0),
    Sketcher.Constraint("DistanceX", -1, 1, 1, 3, 18.6),
    Sketcher.Constraint("DistanceX", -1, 1, 3, 3, 108.3),
    Sketcher.Constraint("DistanceY", -1, 1, 4, 3, 41.5),
    Sketcher.Constraint("DistanceX", -1, 1, 0, 3, 18.61),
    Sketcher.Constraint("DistanceY", -1, 1, 1, 3, 18.76),
    Sketcher.Constraint("DistanceX", -1, 1, 2, 3, 61.84),
    Sketcher.Constraint("DistanceY", -1, 1, 2, 3, 1.51),
    Sketcher.Constraint("DistanceX", -1, 1, 4, 3, 94.55),
    Sketcher.Constraint("DistanceY", -1, 1, 0, 3, 37.509997),
])
pocket1 = body.newObject("PartDesign::Pocket", "Pocket")
pocket1.Profile = sketch3
pocket1.Type = "ThroughAll"
pocket1.Reversed = True

sketch4 = body.newObject("Sketcher::SketchObject", "Sketch003")
sketch4.AttachmentSupport = (doc.getObject("XY_Plane"), [""])
sketch4.MapMode = "FlatFace"
sketch4.AttachmentOffset = App.Placement(App.Vector(0, 0, -15), App.Rotation())
sketch4.addGeometry([
    Part.LineSegment(App.Vector(24, 45.7, 0), App.Vector(24, 9.5, 0)),
    Part.ArcOfCircle(Part.Circle(App.Vector(27, 9.5, 0), App.Vector(0, 0, 1), 2.9), math.radians(-180), math.radians(-90)),
    Part.LineSegment(App.Vector(27, 6.6, 0), App.Vector(86.5, 6.6, 0)),
    Part.ArcOfCircle(Part.Circle(App.Vector(86.5, 9.5, 0), App.Vector(0, 0, 1), 2.9), math.radians(-90), math.radians(0)),
    Part.LineSegment(App.Vector(89.4, 9.5, 0), App.Vector(89.4, 45.7, 0)),
    Part.ArcOfCircle(Part.Circle(App.Vector(86.5, 45.7, 0), App.Vector(0, 0, 1), 2.9), math.radians(0), math.radians(90)),
    Part.LineSegment(App.Vector(86.5, 48.6, 0), App.Vector(27, 48.6, 0)),
    Part.ArcOfCircle(Part.Circle(App.Vector(27, 45.7, 0), App.Vector(0, 0, 1), 2.9), math.radians(90), math.radians(180)),
], False)
sketch4.addConstraint([
    Sketcher.Constraint("Tangent", 0, 2, 1, 1),
    Sketcher.Constraint("Tangent", 1, 2, 2, 1),
    Sketcher.Constraint("Tangent", 2, 2, 3, 1),
    Sketcher.Constraint("Tangent", 3, 2, 4, 1),
    Sketcher.Constraint("Tangent", 4, 2, 5, 1),
    Sketcher.Constraint("Tangent", 5, 2, 6, 1),
    Sketcher.Constraint("Tangent", 6, 2, 7, 1),
    Sketcher.Constraint("Tangent", 7, 2, 0, 1),
    Sketcher.Constraint("Vertical", 0),
    Sketcher.Constraint("Horizontal", 2),
    Sketcher.Constraint("Vertical", 4),
    Sketcher.Constraint("Horizontal", 6),
    Sketcher.Constraint("Equal", 1, 3),
    Sketcher.Constraint("Equal", 3, 5),
    Sketcher.Constraint("Equal", 5, 7),
    Sketcher.Constraint("Radius", 1, 2.905001),
    Sketcher.Constraint("DistanceY", 2, 2, 5, 2, 42.0),
    Sketcher.Constraint("DistanceX", 2, 1, 2, 2, 59.578918),
    Sketcher.Constraint("DistanceX", -1, 1, 1, 3, 26.95166),
    Sketcher.Constraint("DistanceY", -1, 1, 1, 3, 9.526234),
])
pocket2 = body.newObject("PartDesign::Pocket", "Pocket001")
pocket2.Profile = sketch4
pocket2.Length = 2.6

sketch5 = body.newObject("Sketcher::SketchObject", "Sketch004")
sketch5.AttachmentSupport = (doc.getObject("XY_Plane"), [""])
sketch5.MapMode = "FlatFace"
sketch5.AttachmentOffset = App.Placement(App.Vector(0, 0, -18), App.Rotation())
sketch5.addGeometry([
    Part.Circle(App.Vector(61.8, 1.5, 0), App.Vector(0, 0, 1), 2.5),
    Part.Circle(App.Vector(108.3, -6.2, 0), App.Vector(0, 0, 1), 2.5),
    Part.Circle(App.Vector(94.5, 41.5, 0), App.Vector(0, 0, 1), 2.5),
    Part.Circle(App.Vector(18.6, 37.5, 0), App.Vector(0, 0, 1), 2.5),
    Part.Circle(App.Vector(18.6, 18.8, 0), App.Vector(0, 0, 1), 2.5),
], False)
sketch5.addConstraint([
    Sketcher.Constraint("Equal", 0, 1),
    Sketcher.Constraint("Equal", 1, 2),
    Sketcher.Constraint("Equal", 2, 3),
    Sketcher.Constraint("Equal", 3, 4),
    Sketcher.Constraint("Diameter", 0, 5.0),
    Sketcher.Constraint("DistanceY", 1, 3, 4, 3, 25.0),
    Sketcher.Constraint("DistanceX", -1, 1, 1, 3, 108.3),
    Sketcher.Constraint("DistanceY", -1, 1, 2, 3, 41.5),
    Sketcher.Constraint("DistanceX", -1, 1, 4, 3, 18.6),
    Sketcher.Constraint("DistanceX", -1, 1, 0, 3, 61.84),
    Sketcher.Constraint("DistanceY", -1, 1, 0, 3, 1.51),
    Sketcher.Constraint("DistanceY", 1, 3, -1, 1, 6.24),
    Sketcher.Constraint("DistanceX", -1, 1, 2, 3, 94.55),
    Sketcher.Constraint("DistanceX", -1, 1, 3, 3, 18.61),
    Sketcher.Constraint("DistanceY", -1, 1, 3, 3, 37.509997),
])
pocket3 = body.newObject("PartDesign::Pocket", "Pocket002")
pocket3.Profile = sketch5
pocket3.Length = 1
pocket3.Reversed = True

sketch6 = body.newObject("Sketcher::SketchObject", "Sketch005")
sketch6.AttachmentSupport = (doc.getObject("XY_Plane"), [""])
sketch6.MapMode = "FlatFace"
sketch6.AttachmentOffset = App.Placement(App.Vector(0, 0, -17), App.Rotation())
sketch6.addGeometry([
    Part.Circle(App.Vector(61.8, 1.5, 0), App.Vector(0, 0, 1), 1.3),
    Part.Circle(App.Vector(18.6, 18.8, 0), App.Vector(0, 0, 1), 1.2),
    Part.Circle(App.Vector(108.3, -6.2, 0), App.Vector(0, 0, 1), 1.2),
    Part.Circle(App.Vector(94.5, 41.5, 0), App.Vector(0, 0, 1), 1.2),
    Part.Circle(App.Vector(18.6, 37.5, 0), App.Vector(0, 0, 1), 1.2),
], False)
sketch6.addConstraint([
    Sketcher.Constraint("Equal", 1, 2),
    Sketcher.Constraint("Equal", 2, 3),
    Sketcher.Constraint("Equal", 3, 4),
    Sketcher.Constraint("Diameter", 1, 2.5),
    Sketcher.Constraint("DistanceY", 2, 3, 1, 3, 25.0),
    Sketcher.Constraint("DistanceX", -1, 1, 1, 3, 18.6),
    Sketcher.Constraint("DistanceX", -1, 1, 2, 3, 108.3),
    Sketcher.Constraint("DistanceY", -1, 1, 3, 3, 41.5),
    Sketcher.Constraint("DistanceX", -1, 1, 0, 3, 61.84),
    Sketcher.Constraint("DistanceY", -1, 1, 0, 3, 1.51),
    Sketcher.Constraint("DistanceY", -1, 1, 1, 3, 18.76),
    Sketcher.Constraint("DistanceX", -1, 1, 3, 3, 94.55),
    Sketcher.Constraint("DistanceX", -1, 1, 4, 3, 18.61),
    Sketcher.Constraint("Diameter", 0, 2.528828),
    Sketcher.Constraint("DistanceY", -1, 1, 4, 3, 37.509997),
])
pad3 = body.newObject("PartDesign::Pad", "Pad002")
pad3.Profile = sketch6
pad3.Length = 0.24
body2 = doc.addObject("PartDesign::Body", "Body001")
doc.recompute()

body.Placement = App.Placement(App.Vector(0, 0, 9.4), App.Rotation(App.Vector(0, 0, 1), 0))
boolean = body2.newObject("PartDesign::Boolean", "Boolean")
boolean.Type = "Fuse"
boolean.addObjects([body])

doc.recompute()
